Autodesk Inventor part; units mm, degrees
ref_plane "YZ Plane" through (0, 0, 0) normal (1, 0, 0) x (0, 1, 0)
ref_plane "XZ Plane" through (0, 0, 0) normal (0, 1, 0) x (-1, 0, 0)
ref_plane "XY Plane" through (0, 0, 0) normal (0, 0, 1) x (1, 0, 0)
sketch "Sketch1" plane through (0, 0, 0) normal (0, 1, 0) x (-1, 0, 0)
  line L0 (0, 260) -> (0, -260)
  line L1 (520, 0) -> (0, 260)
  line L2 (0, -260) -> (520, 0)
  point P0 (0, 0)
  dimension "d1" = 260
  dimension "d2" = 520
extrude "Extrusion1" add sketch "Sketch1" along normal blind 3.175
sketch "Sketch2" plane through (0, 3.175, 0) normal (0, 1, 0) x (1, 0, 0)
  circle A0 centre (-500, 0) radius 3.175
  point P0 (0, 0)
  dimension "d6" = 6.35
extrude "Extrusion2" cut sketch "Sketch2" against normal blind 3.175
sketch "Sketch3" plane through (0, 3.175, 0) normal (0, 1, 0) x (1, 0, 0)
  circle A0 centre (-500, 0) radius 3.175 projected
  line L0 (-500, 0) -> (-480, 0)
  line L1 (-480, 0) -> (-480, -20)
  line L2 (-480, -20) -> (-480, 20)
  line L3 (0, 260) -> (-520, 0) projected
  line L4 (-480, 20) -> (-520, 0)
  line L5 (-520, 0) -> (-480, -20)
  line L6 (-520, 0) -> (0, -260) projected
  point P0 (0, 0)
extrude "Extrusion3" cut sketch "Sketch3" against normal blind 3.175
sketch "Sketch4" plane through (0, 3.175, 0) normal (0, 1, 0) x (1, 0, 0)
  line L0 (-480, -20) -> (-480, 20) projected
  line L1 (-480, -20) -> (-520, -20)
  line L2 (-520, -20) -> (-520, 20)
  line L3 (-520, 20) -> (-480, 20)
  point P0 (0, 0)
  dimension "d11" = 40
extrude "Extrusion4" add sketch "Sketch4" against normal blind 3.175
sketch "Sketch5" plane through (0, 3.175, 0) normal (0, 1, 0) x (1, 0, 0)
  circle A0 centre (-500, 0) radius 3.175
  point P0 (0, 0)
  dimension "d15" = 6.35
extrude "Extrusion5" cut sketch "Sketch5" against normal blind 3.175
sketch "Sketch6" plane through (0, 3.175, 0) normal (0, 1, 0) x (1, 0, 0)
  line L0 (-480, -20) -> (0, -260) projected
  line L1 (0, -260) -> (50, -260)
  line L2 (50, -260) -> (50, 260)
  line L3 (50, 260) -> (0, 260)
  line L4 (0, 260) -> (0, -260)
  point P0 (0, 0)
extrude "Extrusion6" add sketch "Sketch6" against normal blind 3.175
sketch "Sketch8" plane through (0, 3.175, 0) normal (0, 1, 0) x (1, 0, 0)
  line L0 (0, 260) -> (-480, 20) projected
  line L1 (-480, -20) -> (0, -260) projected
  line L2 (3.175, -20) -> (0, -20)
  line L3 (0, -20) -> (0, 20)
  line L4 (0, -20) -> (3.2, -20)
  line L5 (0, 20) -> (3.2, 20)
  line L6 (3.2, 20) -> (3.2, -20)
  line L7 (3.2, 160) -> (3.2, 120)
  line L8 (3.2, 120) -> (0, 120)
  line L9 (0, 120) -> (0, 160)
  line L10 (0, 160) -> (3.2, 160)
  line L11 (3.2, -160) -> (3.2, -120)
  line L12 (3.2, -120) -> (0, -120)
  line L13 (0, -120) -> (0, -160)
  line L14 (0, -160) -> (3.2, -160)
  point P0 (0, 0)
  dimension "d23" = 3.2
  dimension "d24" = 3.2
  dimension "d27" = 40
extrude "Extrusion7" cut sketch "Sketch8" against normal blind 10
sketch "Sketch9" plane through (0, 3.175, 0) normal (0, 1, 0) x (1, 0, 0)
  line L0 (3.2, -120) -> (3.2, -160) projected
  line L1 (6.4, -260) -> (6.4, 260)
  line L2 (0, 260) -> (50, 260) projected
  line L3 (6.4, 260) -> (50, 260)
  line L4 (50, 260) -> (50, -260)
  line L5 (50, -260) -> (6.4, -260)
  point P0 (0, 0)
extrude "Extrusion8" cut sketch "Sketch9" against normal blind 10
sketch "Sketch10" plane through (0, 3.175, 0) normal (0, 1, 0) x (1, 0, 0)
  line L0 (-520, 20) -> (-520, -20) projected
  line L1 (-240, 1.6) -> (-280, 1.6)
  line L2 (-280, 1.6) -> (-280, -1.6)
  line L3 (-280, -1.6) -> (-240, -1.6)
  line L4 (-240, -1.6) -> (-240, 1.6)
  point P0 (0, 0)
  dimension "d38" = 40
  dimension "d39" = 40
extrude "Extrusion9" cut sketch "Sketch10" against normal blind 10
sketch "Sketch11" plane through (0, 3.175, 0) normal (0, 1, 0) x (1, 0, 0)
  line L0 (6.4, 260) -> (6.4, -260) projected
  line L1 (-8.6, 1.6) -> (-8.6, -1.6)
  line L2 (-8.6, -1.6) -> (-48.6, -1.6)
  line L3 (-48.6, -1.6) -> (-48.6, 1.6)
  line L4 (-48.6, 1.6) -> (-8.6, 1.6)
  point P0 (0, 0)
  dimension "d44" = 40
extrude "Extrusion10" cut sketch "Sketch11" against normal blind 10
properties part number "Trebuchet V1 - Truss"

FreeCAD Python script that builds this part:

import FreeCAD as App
import Part
import Sketcher
from FreeCAD import Vector
Q = App.Units.Quantity

doc = App.newDocument("Part")
params = doc.addObject("Spreadsheet::Sheet", "Params")
for row, (alias, value) in enumerate([
    ("sketch1_height", "520 mm"),
    ("pad1_length", "3.175 mm"),
    ("sketch2_diameter", "6.35 mm"),
    ("pocket1_length", "3.175 mm"),
    ("sketch3_diameter", "6.35 mm"),
    ("sketch3_height", "20 mm"),
    ("pocket2_length", "3.175 mm"),
    ("sketch4_width", "40 mm"),
    ("pad2_length", "3.175 mm"),
    ("sketch5_diameter", "6.35 mm"),
    ("pocket3_length", "3.175 mm"),
    ("sketch6_width", "50 mm"),
    ("sketch6_height", "520 mm"),
    ("pad3_length", "3.175 mm"),
    ("sketch7_height", "40 mm"),
    ("sketch7_width", "3.2 mm"),
    ("pocket4_length", "10 mm"),
    ("sketch8_height", "520 mm"),
    ("sketch8_width", "43.6 mm"),
    ("pocket5_length", "10 mm"),
    ("sketch9_width", "40 mm"),
    ("sketch9_height", "3.2 mm"),
    ("pocket6_length", "10 mm"),
    ("sketch10_width", "40 mm"),
    ("sketch10_height", "3.2 mm"),
    ("pocket7_length", "10 mm"),
], start=1):
    params.set(f"A{row}", alias)
    params.set(f"B{row}", "=" + value)
    params.setAlias(f"B{row}", alias)

body = doc.addObject("PartDesign::Body", "Body")

# Sketch on XZ plane
sketch1 = body.newObject("Sketcher::SketchObject", "Sketch")
sketch1.AttachmentSupport = (doc.getObject("XZ_Plane"), [""])
sketch1.MapMode = "FlatFace"
sketch1.addGeometry(Part.LineSegment(Vector(-520, 0, 0), Vector(0, 260, 0)), False)
sketch1.addGeometry(Part.LineSegment(Vector(0, 260, 0), Vector(0, -260, 0)), False)
sketch1.addGeometry(Part.LineSegment(Vector(0, -260, 0), Vector(-520, 0, 0)), False)
sketch1.addConstraint(Sketcher.Constraint("Coincident", 0, 2, 1, 1))
sketch1.addConstraint(Sketcher.Constraint("Coincident", 1, 2, 2, 1))
sketch1.addConstraint(Sketcher.Constraint("Coincident", 2, 2, 0, 1))
sketch1.addConstraint(Sketcher.Constraint("Vertical", 1))
sketch1.addConstraint(Sketcher.Constraint("Symmetric", 0, 2, 1, 2, -1, 1))
sketch1.addConstraint(Sketcher.Constraint("PointOnObject", 2, 2, -1))
sketch1.addConstraint(Sketcher.Constraint("DistanceY", 1, 2, 1, 1, Q("520 mm")))
sketch1.addConstraint(Sketcher.Constraint("DistanceX", 2, 2, -1, 1, Q("520 mm")))
sketch1.setExpression("Constraints[6]", "Params.sketch1_height")
pad1 = body.newObject("PartDesign::Pad", "Pad")
pad1.Profile = sketch1
pad1.setExpression("Length", "Params.pad1_length")
pad1.Reversed = True

# Sketch on XZ plane
sketch2 = body.newObject("Sketcher::SketchObject", "Sketch001")
sketch2.AttachmentSupport = (doc.getObject("XZ_Plane"), [""])
sketch2.MapMode = "FlatFace"
sketch2.AttachmentOffset = App.Placement(Vector(0, 0, -3.175), App.Rotation())
sketch2.addGeometry(Part.Circle(Vector(-500, 0, 0), Vector(0, 0, 1), 3.2), False)
sketch2.addConstraint(Sketcher.Constraint("PointOnObject", 0, 3, -1))
sketch2.addConstraint(Sketcher.Constraint("Diameter", 0, Q("6.35 mm")))
sketch2.addConstraint(Sketcher.Constraint("DistanceX", 0, 3, -1, 1, Q("500 mm")))
sketch2.setExpression("Constraints[1]", "Params.sketch2_diameter")
pocket1 = body.newObject("PartDesign::Pocket", "Pocket")
pocket1.Profile = sketch2
pocket1.setExpression("Length", "Params.pocket1_length")
pocket1.Reversed = True

# Sketch on XZ plane
sketch3 = body.newObject("Sketcher::SketchObject", "Sketch002")
sketch3.AttachmentSupport = (doc.getObject("XZ_Plane"), [""])
sketch3.MapMode = "FlatFace"
sketch3.AttachmentOffset = App.Placement(Vector(0, 0, -3.175), App.Rotation())
sketch3.addGeometry(Part.LineSegment(Vector(-480, 20, 0), Vector(-480, 0, 0)), False)
sketch3.addGeometry(Part.LineSegment(Vector(-480, 0, 0), Vector(-480, -20, 0)), False)
sketch3.addGeometry(Part.LineSegment(Vector(-480, -20, 0), Vector(-520, 0, 0)), False)
sketch3.addGeometry(Part.LineSegment(Vector(-520, 0, 0), Vector(-480, 20, 0)), False)
sketch3.addGeometry(Part.Circle(Vector(-500, 0, 0), Vector(0, 0, 1), 3.2), False)
sketch3.addConstraint(Sketcher.Constraint("Coincident", 0, 2, 1, 1))
sketch3.addConstraint(Sketcher.Constraint("Coincident", 1, 2, 2, 1))
sketch3.addConstraint(Sketcher.Constraint("Coincident", 2, 2, 3, 1))
sketch3.addConstraint(Sketcher.Constraint("Coincident", 3, 2, 0, 1))
sketch3.addConstraint(Sketcher.Constraint("Vertical", 0))
sketch3.addConstraint(Sketcher.Constraint("Vertical", 1))
sketch3.addConstraint(Sketcher.Constraint("PointOnObject", 4, 3, -1))
sketch3.addConstraint(Sketcher.Constraint("PointOnObject", 0, 2, -1))
sketch3.addConstraint(Sketcher.Constraint("PointOnObject", 2, 2, -1))
sketch3.addConstraint(Sketcher.Constraint("Equal", 0, 1))
sketch3.addConstraint(Sketcher.Constraint("Diameter", 4, Q("6.35 mm")))
sketch3.addConstraint(Sketcher.Constraint("DistanceY", 0, 2, 0, 1, Q("20 mm")))
sketch3.addConstraint(Sketcher.Constraint("DistanceX", 4, 3, -1, 1, Q("500 mm")))
sketch3.addConstraint(Sketcher.Constraint("DistanceX", 0, 2, -1, 1, Q("480 mm")))
sketch3.addConstraint(Sketcher.Constraint("DistanceX", 2, 2, -1, 1, Q("520 mm")))
sketch3.setExpression("Constraints[10]", "Params.sketch3_diameter")
sketch3.setExpression("Constraints[11]", "Params.sketch3_height")
pocket2 = body.newObject("PartDesign::Pocket", "Pocket001")
pocket2.Profile = sketch3
pocket2.setExpression("Length", "Params.pocket2_length")
pocket2.Reversed = True

# Sketch on XZ plane
sketch4 = body.newObject("Sketcher::SketchObject", "Sketch003")
sketch4.AttachmentSupport = (doc.getObject("XZ_Plane"), [""])
sketch4.MapMode = "FlatFace"
sketch4.AttachmentOffset = App.Placement(Vector(0, 0, -3.175), App.Rotation())
sketch4.addGeometry(Part.LineSegment(Vector(-520, 20, 0), Vector(-480, 20, 0)), False)
sketch4.addGeometry(Part.LineSegment(Vector(-480, 20, 0), Vector(-480, -20, 0)), False)
sketch4.addGeometry(Part.LineSegment(Vector(-480, -20, 0), Vector(-520, -20, 0)), False)
sketch4.addGeometry(Part.LineSegment(Vector(-520, -20, 0), Vector(-520, 20, 0)), False)
sketch4.addConstraint(Sketcher.Constraint("Coincident", 0, 2, 1, 1))
sketch4.addConstraint(Sketcher.Constraint("Coincident", 1, 2, 2, 1))
sketch4.addConstraint(Sketcher.Constraint("Coincident", 2, 2, 3, 1))
sketch4.addConstraint(Sketcher.Constraint("Coincident", 3, 2, 0, 1))
sketch4.addConstraint(Sketcher.Constraint("Horizontal", 0))
sketch4.addConstraint(Sketcher.Constraint("Vertical", 1))
sketch4.addConstraint(Sketcher.Constraint("Horizontal", 2))
sketch4.addConstraint(Sketcher.Constraint("Vertical", 3))
sketch4.addConstraint(Sketcher.Constraint("Equal", 2, 1))
sketch4.addConstraint(Sketcher.Constraint("DistanceX", 0, 1, 0, 2, Q("40 mm")))
sketch4.addConstraint(Sketcher.Constraint("DistanceX", 0, 2, -1, 1, Q("480 mm")))
sketch4.addConstraint(Sketcher.Constraint("DistanceY", -1, 1, 0, 2, Q("20 mm")))
sketch4.setExpression("Constraints[9]", "Params.sketch4_width")
pad2 = body.newObject("PartDesign::Pad", "Pad001")
pad2.Profile = sketch4
pad2.setExpression("Length", "Params.pad2_length")

# Sketch on XZ plane
sketch5 = body.newObject("Sketcher::SketchObject", "Sketch004")
sketch5.AttachmentSupport = (doc.getObject("XZ_Plane"), [""])
sketch5.MapMode = "FlatFace"
sketch5.AttachmentOffset = App.Placement(Vector(0, 0, -3.175), App.Rotation())
sketch5.addGeometry(Part.Circle(Vector(-500, 0, 0), Vector(0, 0, 1), 3.2), False)
sketch5.addConstraint(Sketcher.Constraint("PointOnObject", 0, 3, -1))
sketch5.addConstraint(Sketcher.Constraint("Diameter", 0, Q("6.35 mm")))
sketch5.addConstraint(Sketcher.Constraint("DistanceX", 0, 3, -1, 1, Q("500 mm")))
sketch5.setExpression("Constraints[1]", "Params.sketch5_diameter")
pocket3 = body.newObject("PartDesign::Pocket", "Pocket002")
pocket3.Profile = sketch5
pocket3.setExpression("Length", "Params.pocket3_length")
pocket3.Reversed = True

# Sketch on XZ plane
sketch6 = body.newObject("Sketcher::SketchObject", "Sketch005")
sketch6.AttachmentSupport = (doc.getObject("XZ_Plane"), [""])
sketch6.MapMode = "FlatFace"
sketch6.AttachmentOffset = App.Placement(Vector(0, 0, -3.175), App.Rotation())
sketch6.addGeometry(Part.LineSegment(Vector(0, -260, 0), Vector(0, 260, 0)), False)
sketch6.addGeometry(Part.LineSegment(Vector(0, 260, 0), Vector(50, 260, 0)), False)
sketch6.addGeometry(Part.LineSegment(Vector(50, 260, 0), Vector(50, -260, 0)), False)
sketch6.addGeometry(Part.LineSegment(Vector(50, -260, 0), Vector(0, -260, 0)), False)
sketch6.addConstraint(Sketcher.Constraint("Coincident", 0, 2, 1, 1))
sketch6.addConstraint(Sketcher.Constraint("Coincident", 1, 2, 2, 1))
sketch6.addConstraint(Sketcher.Constraint("Coincident", 2, 2, 3, 1))
sketch6.addConstraint(Sketcher.Constraint("Coincident", 3, 2, 0, 1))
sketch6.addConstraint(Sketcher.Constraint("Vertical", 0))
sketch6.addConstraint(Sketcher.Constraint("Horizontal", 1))
sketch6.addConstraint(Sketcher.Constraint("Vertical", 2))
sketch6.addConstraint(Sketcher.Constraint("Horizontal", 3))
sketch6.addConstraint(Sketcher.Constraint("Symmetric", 0, 2, 3, 2, -1, 1))
sketch6.addConstraint(Sketcher.Constraint("DistanceX", 1, 1, 1, 2, Q("50 mm")))
sketch6.addConstraint(Sketcher.Constraint("DistanceY", 0, 1, 0, 2, Q("520 mm")))
sketch6.setExpression("Constraints[9]", "Params.sketch6_width")
sketch6.setExpression("Constraints[10]", "Params.sketch6_height")
pad3 = body.newObject("PartDesign::Pad", "Pad002")
pad3.Profile = sketch6
pad3.setExpression("Length", "Params.pad3_length")

# Sketch on XZ plane
sketch7 = body.newObject("Sketcher::SketchObject", "Sketch006")
sketch7.AttachmentSupport = (doc.getObject("XZ_Plane"), [""])
sketch7.MapMode = "FlatFace"
sketch7.AttachmentOffset = App.Placement(Vector(0, 0, -3.175), App.Rotation())
sketch7.addGeometry(Part.LineSegment(Vector(0, 20, 0), Vector(3.2, 20, 0)), False)
sketch7.addGeometry(Part.LineSegment(Vector(3.2, 20, 0), Vector(3.2, -20, 0)), False)
sketch7.addGeometry(Part.LineSegment(Vector(3.2, -20, 0), Vector(0, -20, 0)), False)
sketch7.addGeometry(Part.LineSegment(Vector(0, -20, 0), Vector(0, 20, 0)), False)
sketch7.addGeometry(Part.LineSegment(Vector(3.2, -120, 0), Vector(3.2, -160, 0)), False)
sketch7.addGeometry(Part.LineSegment(Vector(3.2, -160, 0), Vector(0, -160, 0)), False)
sketch7.addGeometry(Part.LineSegment(Vector(0, -160, 0), Vector(0, -120, 0)), False)
sketch7.addGeometry(Part.LineSegment(Vector(0, -120, 0), Vector(3.2, -120, 0)), False)
sketch7.addGeometry(Part.LineSegment(Vector(0, 160, 0), Vector(3.2, 160, 0)), False)
sketch7.addGeometry(Part.LineSegment(Vector(3.2, 160, 0), Vector(3.2, 120, 0)), False)
sketch7.addGeometry(Part.LineSegment(Vector(3.2, 120, 0), Vector(0, 120, 0)), False)
sketch7.addGeometry(Part.LineSegment(Vector(0, 120, 0), Vector(0, 160, 0)), False)
sketch7.addConstraint(Sketcher.Constraint("Coincident", 0, 2, 1, 1))
sketch7.addConstraint(Sketcher.Constraint("Coincident", 1, 2, 2, 1))
sketch7.addConstraint(Sketcher.Constraint("Coincident", 2, 2, 3, 1))
sketch7.addConstraint(Sketcher.Constraint("Coincident", 3, 2, 0, 1))
sketch7.addConstraint(Sketcher.Constraint("Coincident", 4, 2, 5, 1))
sketch7.addConstraint(Sketcher.Constraint("Coincident", 5, 2, 6, 1))
sketch7.addConstraint(Sketcher.Constraint("Coincident", 6, 2, 7, 1))
sketch7.addConstraint(Sketcher.Constraint("Coincident", 7, 2, 4, 1))
sketch7.addConstraint(Sketcher.Constraint("Coincident", 8, 2, 9, 1))
sketch7.addConstraint(Sketcher.Constraint("Coincident", 9, 2, 10, 1))
sketch7.addConstraint(Sketcher.Constraint("Coincident", 10, 2, 11, 1))
sketch7.addConstraint(Sketcher.Constraint("Coincident", 11, 2, 8, 1))
sketch7.addConstraint(Sketcher.Constraint("Horizontal", 0))
sketch7.addConstraint(Sketcher.Constraint("Vertical", 1))
sketch7.addConstraint(Sketcher.Constraint("Horizontal", 2))
sketch7.addConstraint(Sketcher.Constraint("Vertical", 3))
sketch7.addConstraint(Sketcher.Constraint("Vertical", 4))
sketch7.addConstraint(Sketcher.Constraint("Horizontal", 5))
sketch7.addConstraint(Sketcher.Constraint("Vertical", 6))
sketch7.addConstraint(Sketcher.Constraint("Horizontal", 7))
sketch7.addConstraint(Sketcher.Constraint("Horizontal", 8))
sketch7.addConstraint(Sketcher.Constraint("Vertical", 9))
sketch7.addConstraint(Sketcher.Constraint("Horizontal", 10))
sketch7.addConstraint(Sketcher.Constraint("Vertical", 11))
sketch7.addConstraint(Sketcher.Constraint("Symmetric", 2, 2, 3, 2, -1, 1))
sketch7.addConstraint(Sketcher.Constraint("Symmetric", 6, 2, 10, 2, -1, 1))
sketch7.addConstraint(Sketcher.Constraint("Symmetric", 4, 2, 8, 2, -1))
sketch7.addConstraint(Sketcher.Constraint("PointOnObject", 5, 2, -2))
sketch7.addConstraint(Sketcher.Constraint("Vertical", 1, 2, 4, 2))
sketch7.addConstraint(Sketcher.Constraint("Equal", 3, 4))
sketch7.addConstraint(Sketcher.Constraint("DistanceY", 1, 2, 1, 1, Q("40 mm")))
sketch7.addConstraint(Sketcher.Constraint("DistanceX", 0, 1, 0, 2, Q("3.2 mm")))
sketch7.addConstraint(Sketcher.Constraint("DistanceY", 4, 2, -1, 1, Q("160 mm")))
sketch7.setExpression("Constraints[30]", "Params.sketch7_height")
sketch7.setExpression("Constraints[31]", "Params.sketch7_width")
pocket4 = body.newObject("PartDesign::Pocket", "Pocket003")
pocket4.Profile = sketch7
pocket4.setExpression("Length", "Params.pocket4_length")
pocket4.Reversed = True

# Sketch on XZ plane
sketch8 = body.newObject("Sketcher::SketchObject", "Sketch007")
sketch8.AttachmentSupport = (doc.getObject("XZ_Plane"), [""])
sketch8.MapMode = "FlatFace"
sketch8.AttachmentOffset = App.Placement(Vector(0, 0, -3.175), App.Rotation())
sketch8.addGeometry(Part.LineSegment(Vector(6, -260, 0), Vector(6, 260, 0)), False)
sketch8.addGeometry(Part.LineSegment(Vector(6, 260, 0), Vector(50, 260, 0)), False)
sketch8.addGeometry(Part.LineSegment(Vector(50, 260, 0), Vector(50, -260, 0)), False)
sketch8.addGeometry(Part.LineSegment(Vector(50, -260, 0), Vector(6, -260, 0)), False)
sketch8.addConstraint(Sketcher.Constraint("Coincident", 0, 2, 1, 1))
sketch8.addConstraint(Sketcher.Constraint("Coincident", 1, 2, 2, 1))
sketch8.addConstraint(Sketcher.Constraint("Coincident", 2, 2, 3, 1))
sketch8.addConstraint(Sketcher.Constraint("Coincident", 3, 2, 0, 1))
sketch8.addConstraint(Sketcher.Constraint("Vertical", 0))
sketch8.addConstraint(Sketcher.Constraint("Horizontal", 1))
sketch8.addConstraint(Sketcher.Constraint("Vertical", 2))
sketch8.addConstraint(Sketcher.Constraint("Horizontal", 3))
sketch8.addConstraint(Sketcher.Constraint("DistanceY", 0, 1, 0, 2, Q("520 mm")))
sketch8.addConstraint(Sketcher.Constraint("DistanceX", 1, 1, 1, 2, Q("43.6 mm")))
sketch8.addConstraint(Sketcher.Constraint("DistanceY", -1, 1, 0, 2, Q("260 mm")))
sketch8.addConstraint(Sketcher.Constraint("DistanceX", -1, 1, 1, 2, Q("50 mm")))
sketch8.setExpression("Constraints[8]", "Params.sketch8_height")
sketch8.setExpression("Constraints[9]", "Params.sketch8_width")
pocket5 = body.newObject("PartDesign::Pocket", "Pocket004")
pocket5.Profile = sketch8
pocket5.setExpression("Length", "Params.pocket5_length")
pocket5.Reversed = True

# Sketch on XZ plane
sketch9 = body.newObject("Sketcher::SketchObject", "Sketch008")
sketch9.AttachmentSupport = (doc.getObject("XZ_Plane"), [""])
sketch9.MapMode = "FlatFace"
sketch9.AttachmentOffset = App.Placement(Vector(0, 0, -3.175), App.Rotation())
sketch9.addGeometry(Part.LineSegment(Vector(-240, 1.6, 0), Vector(-240, -1.6, 0)), False)
sketch9.addGeometry(Part.LineSegment(Vector(-240, -1.6, 0), Vector(-280, -1.6, 0)), False)
sketch9.addGeometry(Part.LineSegment(Vector(-280, -1.6, 0), Vector(-280, 1.6, 0)), False)
sketch9.addGeometry(Part.LineSegment(Vector(-280, 1.6, 0), Vector(-240, 1.6, 0)), False)
sketch9.addConstraint(Sketcher.Constraint("Coincident", 0, 2, 1, 1))
sketch9.addConstraint(Sketcher.Constraint("Coincident", 1, 2, 2, 1))
sketch9.addConstraint(Sketcher.Constraint("Coincident", 2, 2, 3, 1))
sketch9.addConstraint(Sketcher.Constraint("Coincident", 3, 2, 0, 1))
sketch9.addConstraint(Sketcher.Constraint("Vertical", 0))
sketch9.addConstraint(Sketcher.Constraint("Horizontal", 1))
sketch9.addConstraint(Sketcher.Constraint("Vertical", 2))
sketch9.addConstraint(Sketcher.Constraint("Horizontal", 3))
sketch9.addConstraint(Sketcher.Constraint("DistanceX", 1, 2, 1, 1, Q("40 mm")))
sketch9.addConstraint(Sketcher.Constraint("DistanceY", 0, 2, 0, 1, Q("3.2 mm")))
sketch9.addConstraint(Sketcher.Constraint("DistanceX", 0, 2, -1, 1, Q("240 mm")))
sketch9.addConstraint(Sketcher.Constraint("DistanceY", 0, 2, -1, 1, Q("1.6 mm")))
sketch9.setExpression("Constraints[8]", "Params.sketch9_width")
sketch9.setExpression("Constraints[9]", "Params.sketch9_height")
pocket6 = body.newObject("PartDesign::Pocket", "Pocket005")
pocket6.Profile = sketch9
pocket6.setExpression("Length", "Params.pocket6_length")
pocket6.Reversed = True

# Sketch on XZ plane
sketch10 = body.newObject("Sketcher::SketchObject", "Sketch009")
sketch10.AttachmentSupport = (doc.getObject("XZ_Plane"), [""])
sketch10.MapMode = "FlatFace"
sketch10.AttachmentOffset = App.Placement(Vector(0, 0, -3.175), App.Rotation())
sketch10.addGeometry(Part.LineSegment(Vector(-8.6, 1.6, 0), Vector(-8.6, -1.6, 0)), False)
sketch10.addGeometry(Part.LineSegment(Vector(-8.6, -1.6, 0), Vector(-48.6, -1.6, 0)), False)
sketch10.addGeometry(Part.LineSegment(Vector(-48.6, -1.6, 0), Vector(-48.6, 1.6, 0)), False)
sketch10.addGeometry(Part.LineSegment(Vector(-48.6, 1.6, 0), Vector(-8.6, 1.6, 0)), False)
sketch10.addConstraint(Sketcher.Constraint("Coincident", 0, 2, 1, 1))
sketch10.addConstraint(Sketcher.Constraint("Coincident", 1, 2, 2, 1))
sketch10.addConstraint(Sketcher.Constraint("Coincident", 2, 2, 3, 1))
sketch10.addConstraint(Sketcher.Constraint("Coincident", 3, 2, 0, 1))
sketch10.addConstraint(Sketcher.Constraint("Vertical", 0))
sketch10.addConstraint(Sketcher.Constraint("Horizontal", 1))
sketch10.addConstraint(Sketcher.Constraint("Vertical", 2))
sketch10.addConstraint(Sketcher.Constraint("Horizontal", 3))
sketch10.addConstraint(Sketcher.Constraint("DistanceX", 1, 2, 1, 1, Q("40 mm")))
sketch10.addConstraint(Sketcher.Constraint("DistanceY", 0, 2, 0, 1, Q("3.2 mm")))
sketch10.addConstraint(Sketcher.Constraint("DistanceX", 0, 2, -1, 1, Q("8.6 mm")))
sketch10.addConstraint(Sketcher.Constraint("DistanceY", 0, 2, -1, 1, Q("1.6 mm")))
sketch10.setExpression("Constraints[8]", "Params.sketch10_width")
sketch10.setExpression("Constraints[9]", "Params.sketch10_height")
pocket7 = body.newObject("PartDesign::Pocket", "Pocket006")
pocket7.Profile = sketch10
pocket7.setExpression("Length", "Params.pocket7_length")
pocket7.Reversed = True

doc.recompute()
